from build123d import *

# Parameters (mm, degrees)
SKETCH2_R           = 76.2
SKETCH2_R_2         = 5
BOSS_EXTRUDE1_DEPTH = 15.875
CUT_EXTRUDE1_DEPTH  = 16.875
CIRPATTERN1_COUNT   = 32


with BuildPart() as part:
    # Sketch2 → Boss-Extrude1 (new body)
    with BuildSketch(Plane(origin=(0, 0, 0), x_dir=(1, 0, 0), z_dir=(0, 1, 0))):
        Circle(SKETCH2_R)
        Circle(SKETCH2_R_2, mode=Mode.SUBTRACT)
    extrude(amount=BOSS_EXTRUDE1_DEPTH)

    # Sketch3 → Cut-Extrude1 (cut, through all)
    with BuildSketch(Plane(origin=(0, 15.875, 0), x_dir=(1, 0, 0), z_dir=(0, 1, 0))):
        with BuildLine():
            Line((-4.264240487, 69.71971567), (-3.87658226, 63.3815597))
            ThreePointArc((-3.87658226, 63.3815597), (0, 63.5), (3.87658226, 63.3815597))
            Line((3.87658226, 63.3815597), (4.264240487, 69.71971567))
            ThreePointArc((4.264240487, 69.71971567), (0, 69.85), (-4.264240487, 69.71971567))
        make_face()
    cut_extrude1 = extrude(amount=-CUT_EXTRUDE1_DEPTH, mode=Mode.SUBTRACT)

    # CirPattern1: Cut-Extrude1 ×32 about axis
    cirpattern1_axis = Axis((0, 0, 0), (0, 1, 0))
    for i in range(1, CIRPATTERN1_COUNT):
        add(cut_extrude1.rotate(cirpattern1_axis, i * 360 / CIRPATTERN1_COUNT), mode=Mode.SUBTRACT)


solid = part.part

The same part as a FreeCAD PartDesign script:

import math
import FreeCAD as App
import Part
import Sketcher
Q = App.Units.Quantity

doc = App.newDocument("Part")
body = doc.addObject("PartDesign::Body", "Body")

# Sketch on XZ plane
sketch1 = body.newObject("Sketcher::SketchObject", "Sketch")
sketch1.AttachmentSupport = (doc.getObject("XZ_Plane"), [""])
sketch1.MapMode = "FlatFace"
sketch1.addGeometry([
    Part.Circle(App.Vector(0, 0, 0), App.Vector(0, 0, 1), 76),
    Part.Circle(App.Vector(0, 0, 0), App.Vector(0, 0, 1), 5),
], False)
sketch1.addConstraint([
    Sketcher.Constraint("Coincident", 0, 3, -1, 1),
    Sketcher.Constraint("Coincident", 1, 3, -1, 1),
    Sketcher.Constraint("Diameter", 0, Q("6 in")),
    Sketcher.Constraint("Diameter", 1, Q("10 mm")),
])
pad1 = body.newObject("PartDesign::Pad", "Pad")
pad1.Profile = sketch1
pad1.Length = Q("0.625 in")
pad1.Reversed = True

# Sketch on XZ plane
sketch2 = body.newObject("Sketcher::SketchObject", "Sketch001")
sketch2.AttachmentSupport = (doc.getObject("XZ_Plane"), [""])
sketch2.MapMode = "FlatFace"
sketch2.AttachmentOffset = App.Placement(App.Vector(0, 0, -0.625 * 25.4), App.Rotation())
sketch2.addGeometry([
    Part.LineSegment(App.Vector(-4, -70, 0), App.Vector(-4, -63, 0)),
    Part.ArcOfCircle(Part.Circle(App.Vector(0, 0, 0), App.Vector(0, 0, 1), 64), math.radians(-93.5), math.radians(-86.5)),
    Part.LineSegment(App.Vector(4, -63, 0), App.Vector(4, -70, 0)),
    Part.ArcOfCircle(Part.Circle(App.Vector(0, 0, 0), App.Vector(0, 0, 1), 70), math.radians(-93.5), math.radians(-86.5)),
], False)
sketch2.addConstraint([
    Sketcher.Constraint("Coincident", 0, 2, 1, 1),
    Sketcher.Constraint("Coincident", 1, 2, 2, 1),
    Sketcher.Constraint("Coincident", 2, 2, 3, 2),
    Sketcher.Constraint("Coincident", 3, 1, 0, 1),
    Sketcher.Constraint("Coincident", 1, 3, -1, 1),
    Sketcher.Constraint("Coincident", 3, 3, -1, 1),
    Sketcher.Constraint("Horizontal", 0, 2, 1, 2),
    Sketcher.Constraint("Horizontal", 2, 2, 3, 1),
    Sketcher.Constraint("Radius", 1, Q("2.5 in")),
    Sketcher.Constraint("Radius", 3, Q("2.75 in")),
    Sketcher.Constraint("Angle", 0, Q("86.5 deg")),
    Sketcher.Constraint("DistanceY", 0, 2, -1, 1, Q("63.38156 mm")),
])
pocket1 = body.newObject("PartDesign::Pocket", "Pocket")
pocket1.Profile = sketch2
pocket1.Type = "ThroughAll"
pocket1.Reversed = True
doc.recompute()

polarpattern = body.newObject("PartDesign::PolarPattern", "PolarPattern")
polarpattern.Originals = [pocket1]
polarpattern.Axis = (doc.getObject("Y_Axis"), [""])
polarpattern.Angle = 360
polarpattern.Occurrences = 32
body.Tip = polarpattern

doc.recompute()
